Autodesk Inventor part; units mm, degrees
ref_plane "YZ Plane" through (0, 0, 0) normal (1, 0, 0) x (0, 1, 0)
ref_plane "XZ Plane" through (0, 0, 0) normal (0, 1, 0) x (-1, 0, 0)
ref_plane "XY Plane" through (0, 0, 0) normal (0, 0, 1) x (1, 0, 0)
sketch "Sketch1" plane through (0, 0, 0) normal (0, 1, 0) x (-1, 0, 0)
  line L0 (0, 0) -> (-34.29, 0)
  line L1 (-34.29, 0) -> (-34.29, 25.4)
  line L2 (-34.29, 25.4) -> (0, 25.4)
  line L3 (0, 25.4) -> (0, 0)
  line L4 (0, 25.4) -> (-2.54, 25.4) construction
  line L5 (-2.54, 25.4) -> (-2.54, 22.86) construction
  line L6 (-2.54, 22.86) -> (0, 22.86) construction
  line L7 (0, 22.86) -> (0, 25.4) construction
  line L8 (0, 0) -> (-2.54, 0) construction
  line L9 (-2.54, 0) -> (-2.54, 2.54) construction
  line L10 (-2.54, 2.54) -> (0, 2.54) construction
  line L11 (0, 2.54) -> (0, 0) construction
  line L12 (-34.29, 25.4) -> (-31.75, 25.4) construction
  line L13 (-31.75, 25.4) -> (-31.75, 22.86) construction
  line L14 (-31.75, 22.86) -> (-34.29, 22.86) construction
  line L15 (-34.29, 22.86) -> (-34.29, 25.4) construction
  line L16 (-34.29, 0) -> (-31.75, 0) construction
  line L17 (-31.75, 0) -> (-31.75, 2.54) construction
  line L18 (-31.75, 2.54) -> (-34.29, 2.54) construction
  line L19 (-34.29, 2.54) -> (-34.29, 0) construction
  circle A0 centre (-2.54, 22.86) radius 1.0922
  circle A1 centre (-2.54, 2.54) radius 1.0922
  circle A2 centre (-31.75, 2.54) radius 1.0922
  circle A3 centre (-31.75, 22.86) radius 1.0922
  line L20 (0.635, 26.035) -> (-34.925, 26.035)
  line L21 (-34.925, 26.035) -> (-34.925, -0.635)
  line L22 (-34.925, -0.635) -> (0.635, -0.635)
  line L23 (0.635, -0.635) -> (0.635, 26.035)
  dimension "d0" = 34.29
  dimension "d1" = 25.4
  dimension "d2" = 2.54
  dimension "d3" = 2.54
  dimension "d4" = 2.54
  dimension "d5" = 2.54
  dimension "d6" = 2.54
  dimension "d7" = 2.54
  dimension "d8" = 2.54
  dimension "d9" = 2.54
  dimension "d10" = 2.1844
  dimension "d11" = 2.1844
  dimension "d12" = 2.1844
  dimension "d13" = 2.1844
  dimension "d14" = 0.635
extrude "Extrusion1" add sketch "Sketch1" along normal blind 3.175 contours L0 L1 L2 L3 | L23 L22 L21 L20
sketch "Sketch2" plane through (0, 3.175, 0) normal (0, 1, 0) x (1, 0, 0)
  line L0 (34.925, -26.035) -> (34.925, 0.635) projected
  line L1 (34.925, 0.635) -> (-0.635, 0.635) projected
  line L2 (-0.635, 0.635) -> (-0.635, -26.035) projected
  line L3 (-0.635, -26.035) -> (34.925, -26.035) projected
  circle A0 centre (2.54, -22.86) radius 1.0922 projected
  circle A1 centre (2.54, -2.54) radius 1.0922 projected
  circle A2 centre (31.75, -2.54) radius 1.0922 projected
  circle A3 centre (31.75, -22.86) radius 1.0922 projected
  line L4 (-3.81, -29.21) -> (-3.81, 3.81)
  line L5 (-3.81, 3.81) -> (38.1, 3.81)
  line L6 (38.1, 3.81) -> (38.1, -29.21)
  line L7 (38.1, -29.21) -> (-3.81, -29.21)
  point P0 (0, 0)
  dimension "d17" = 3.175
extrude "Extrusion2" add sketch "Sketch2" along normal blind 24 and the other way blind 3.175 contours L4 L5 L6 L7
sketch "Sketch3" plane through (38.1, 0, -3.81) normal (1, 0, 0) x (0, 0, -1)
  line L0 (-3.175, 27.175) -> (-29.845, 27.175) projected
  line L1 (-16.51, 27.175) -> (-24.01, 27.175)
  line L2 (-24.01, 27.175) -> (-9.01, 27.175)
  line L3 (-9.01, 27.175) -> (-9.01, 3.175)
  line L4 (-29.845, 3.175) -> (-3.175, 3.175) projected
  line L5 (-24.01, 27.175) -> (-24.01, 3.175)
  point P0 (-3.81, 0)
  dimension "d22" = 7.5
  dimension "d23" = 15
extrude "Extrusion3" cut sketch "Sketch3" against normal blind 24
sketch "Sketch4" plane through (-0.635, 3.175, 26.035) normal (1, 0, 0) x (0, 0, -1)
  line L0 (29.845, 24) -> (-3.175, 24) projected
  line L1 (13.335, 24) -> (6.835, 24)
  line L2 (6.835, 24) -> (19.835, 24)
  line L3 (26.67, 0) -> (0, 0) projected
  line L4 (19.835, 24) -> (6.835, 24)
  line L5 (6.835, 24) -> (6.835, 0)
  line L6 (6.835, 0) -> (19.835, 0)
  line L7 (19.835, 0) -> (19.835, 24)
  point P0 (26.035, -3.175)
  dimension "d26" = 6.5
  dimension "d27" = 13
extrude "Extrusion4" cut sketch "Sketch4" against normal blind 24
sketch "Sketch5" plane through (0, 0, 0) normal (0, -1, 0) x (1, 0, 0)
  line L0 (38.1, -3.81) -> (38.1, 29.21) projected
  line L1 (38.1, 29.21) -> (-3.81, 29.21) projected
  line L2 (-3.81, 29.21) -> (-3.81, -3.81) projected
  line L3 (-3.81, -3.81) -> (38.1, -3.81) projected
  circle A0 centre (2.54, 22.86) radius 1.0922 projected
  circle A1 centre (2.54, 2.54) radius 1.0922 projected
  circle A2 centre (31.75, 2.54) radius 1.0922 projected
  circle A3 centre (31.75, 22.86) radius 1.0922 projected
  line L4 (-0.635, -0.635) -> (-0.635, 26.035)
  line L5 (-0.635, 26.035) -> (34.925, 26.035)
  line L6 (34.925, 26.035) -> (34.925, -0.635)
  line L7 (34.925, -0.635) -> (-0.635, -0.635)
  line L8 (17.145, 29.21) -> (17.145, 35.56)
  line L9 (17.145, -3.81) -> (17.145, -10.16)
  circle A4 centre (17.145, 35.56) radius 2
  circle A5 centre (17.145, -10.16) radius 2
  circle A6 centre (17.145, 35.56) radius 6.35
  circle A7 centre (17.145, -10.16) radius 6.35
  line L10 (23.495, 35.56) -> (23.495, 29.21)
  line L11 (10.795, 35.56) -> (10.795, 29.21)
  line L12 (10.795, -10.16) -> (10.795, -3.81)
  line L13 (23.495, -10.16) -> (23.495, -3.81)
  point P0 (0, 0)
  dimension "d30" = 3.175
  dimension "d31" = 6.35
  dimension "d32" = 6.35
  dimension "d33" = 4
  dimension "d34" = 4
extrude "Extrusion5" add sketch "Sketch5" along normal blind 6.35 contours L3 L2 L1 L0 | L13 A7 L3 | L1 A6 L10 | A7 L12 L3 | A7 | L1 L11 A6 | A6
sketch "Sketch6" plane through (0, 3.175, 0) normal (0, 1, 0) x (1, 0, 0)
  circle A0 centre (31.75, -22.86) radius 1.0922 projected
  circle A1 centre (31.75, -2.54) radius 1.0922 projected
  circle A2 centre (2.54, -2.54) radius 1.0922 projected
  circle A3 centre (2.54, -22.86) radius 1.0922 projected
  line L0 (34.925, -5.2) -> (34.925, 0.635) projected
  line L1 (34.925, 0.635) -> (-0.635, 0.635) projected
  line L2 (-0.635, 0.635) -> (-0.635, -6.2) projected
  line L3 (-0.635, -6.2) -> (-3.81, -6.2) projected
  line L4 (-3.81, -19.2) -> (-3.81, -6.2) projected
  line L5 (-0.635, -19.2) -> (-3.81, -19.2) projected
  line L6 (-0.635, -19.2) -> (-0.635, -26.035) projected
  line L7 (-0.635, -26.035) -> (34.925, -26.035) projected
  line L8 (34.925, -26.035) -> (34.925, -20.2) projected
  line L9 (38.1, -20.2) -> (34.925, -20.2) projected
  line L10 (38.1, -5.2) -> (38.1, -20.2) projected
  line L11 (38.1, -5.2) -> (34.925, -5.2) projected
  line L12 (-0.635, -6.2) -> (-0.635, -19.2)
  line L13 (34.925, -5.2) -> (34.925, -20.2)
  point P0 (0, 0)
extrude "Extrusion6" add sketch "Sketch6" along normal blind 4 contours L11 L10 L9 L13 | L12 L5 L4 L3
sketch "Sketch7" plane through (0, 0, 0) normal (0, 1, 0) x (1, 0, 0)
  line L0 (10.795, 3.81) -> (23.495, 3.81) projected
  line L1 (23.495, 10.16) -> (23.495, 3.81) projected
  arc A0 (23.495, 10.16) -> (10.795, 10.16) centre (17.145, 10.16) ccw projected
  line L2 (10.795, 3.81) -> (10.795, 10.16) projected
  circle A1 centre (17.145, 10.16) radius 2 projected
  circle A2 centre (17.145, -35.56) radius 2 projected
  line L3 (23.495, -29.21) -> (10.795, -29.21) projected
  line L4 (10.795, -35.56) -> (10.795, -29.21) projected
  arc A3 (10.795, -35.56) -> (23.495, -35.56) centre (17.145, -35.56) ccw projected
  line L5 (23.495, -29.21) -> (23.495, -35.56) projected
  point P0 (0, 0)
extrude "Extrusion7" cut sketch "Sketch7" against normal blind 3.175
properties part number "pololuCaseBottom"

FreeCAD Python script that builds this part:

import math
import FreeCAD as App
import Part
import Sketcher
Q = App.Units.Quantity


def add_polygon(sketch, points):
    """Adds a closed chain of lines whose ends are joined by coincident constraints."""
    first, n = sketch.GeometryCount, len(points)
    for a, b in zip(points, points[1:] + points[:1]):
        sketch.addGeometry(Part.LineSegment(App.Vector(*a, 0), App.Vector(*b, 0)), False)
    for i in range(n):
        sketch.addConstraint(Sketcher.Constraint("Coincident", first + i, 2, first + (i + 1) % n, 1))

doc = App.newDocument("Part")
params = doc.addObject("Spreadsheet::Sheet", "Params")
for row, (alias, value) in enumerate([
    ("sketch1_diameter", "0.086 in"),
    ("sketch1_width", "1.4 in"),
    ("sketch1_height", "1.05 in"),
    ("pad1_length", "0.125 in"),
    ("sketch2_width", "1.4 in"),
    ("sketch2_height", "1.3 in"),
    ("pad2_length", "24 mm"),
    ("pad2_length2", "0.125 in"),
    ("pocket1_length", "24 mm"),
    ("pocket2_length", "24 mm"),
    ("sketch5_radius", "0.25 in"),
    ("sketch5_height", "0.25 in"),
    ("sketch5_width", "1.4 in"),
    ("sketch5_height2", "1.3 in"),
    ("pad3_length", "0.25 in"),
    ("sketch6_width", "0.125 in"),
    ("pad4_length", "4 mm"),
    ("sketch7_radius", "0.25 in"),
    ("sketch7_height", "0.25 in"),
    ("pocket3_length", "0.125 in"),
], start=1):
    params.set(f"A{row}", alias)
    params.set(f"B{row}", "=" + value)
    params.setAlias(f"B{row}", alias)

body = doc.addObject("PartDesign::Body", "Body")

sketch1 = doc.addObject("Sketcher::SketchObject", "Sketch")
body.addObject(sketch1)
sketch1.AttachmentSupport = (doc.XZ_Plane, [""])
sketch1.MapMode = "FlatFace"
add_polygon(sketch1, [(-0.6, -0.6), (-0.6, 26), (34.9, 26), (34.9, -0.6)])
sketch1.addGeometry(Part.Circle(App.Vector(31.8, 2.5, 0), App.Vector(0, 0, 1), 1.1), False)
sketch1.addGeometry(Part.Circle(App.Vector(2.5, 2.5, 0), App.Vector(0, 0, 1), 1.1), False)
sketch1.addGeometry(Part.Circle(App.Vector(31.8, 22.9, 0), App.Vector(0, 0, 1), 1.1), False)
sketch1.addGeometry(Part.Circle(App.Vector(2.5, 22.9, 0), App.Vector(0, 0, 1), 1.1), False)
sketch1.addConstraint([
    Sketcher.Constraint("Vertical", 0),
    Sketcher.Constraint("Horizontal", 1),
    Sketcher.Constraint("Vertical", 2),
    Sketcher.Constraint("Horizontal", 3),
    Sketcher.Constraint("Equal", 4, 5),
    Sketcher.Constraint("Equal", 5, 6),
    Sketcher.Constraint("Equal", 6, 7),
    Sketcher.Constraint("Horizontal", 4, 3, 5, 3),
    Sketcher.Constraint("Horizontal", 6, 3, 7, 3),
    Sketcher.Constraint("Vertical", 4, 3, 6, 3),
    Sketcher.Constraint("Vertical", 5, 3, 7, 3),
    Sketcher.Constraint("Diameter", 4, Q("0.086 in")),
    Sketcher.Constraint("DistanceY", -1, 1, 4, 3, Q("0.1 in")),
    Sketcher.Constraint("DistanceX", -1, 1, 5, 3, Q("0.1 in")),
    Sketcher.Constraint("DistanceX", 1, 1, 1, 2, Q("1.4 in")),
    Sketcher.Constraint("DistanceX", 0, 2, -1, 1, Q("0.025 in")),
    Sketcher.Constraint("DistanceY", 2, 2, -1, 1, Q("0.025 in")),
    Sketcher.Constraint("DistanceY", 0, 1, 0, 2, Q("1.05 in")),
    Sketcher.Constraint("DistanceY", -1, 1, 6, 3, Q("0.9 in")),
    Sketcher.Constraint("DistanceX", -1, 1, 4, 3, Q("1.25 in")),
])
sketch1.setExpression("Constraints[15]", "Params.sketch1_diameter")
sketch1.setExpression("Constraints[18]", "Params.sketch1_width")
sketch1.setExpression("Constraints[21]", "Params.sketch1_height")
pad1 = doc.addObject("PartDesign::Pad", "Pad")
body.addObject(pad1)
pad1.Profile = sketch1
pad1.setExpression("Length", "Params.pad1_length")
pad1.Reversed = True

sketch2 = doc.addObject("Sketcher::SketchObject", "Sketch001")
body.addObject(sketch2)
sketch2.AttachmentSupport = (doc.XZ_Plane, [""])
sketch2.MapMode = "FlatFace"
sketch2.AttachmentOffset = App.Placement(App.Vector(0, 0, -0.125 * 25.4), App.Rotation())
add_polygon(sketch2, [(-4, -4), (-4, 29), (38, 29), (38, -4)])
add_polygon(sketch2, [(35, -1), (35, 26), (-1, 26), (-1, -1)])
sketch2.addConstraint([
    Sketcher.Constraint("Vertical", 0),
    Sketcher.Constraint("Horizontal", 1),
    Sketcher.Constraint("Vertical", 2),
    Sketcher.Constraint("Horizontal", 3),
    Sketcher.Constraint("Vertical", 4),
    Sketcher.Constraint("Horizontal", 5),
    Sketcher.Constraint("Vertical", 6),
    Sketcher.Constraint("Horizontal", 7),
    Sketcher.Constraint("DistanceX", 5, 2, 5, 1, Q("1.4 in")),
    Sketcher.Constraint("DistanceY", 0, 1, 0, 2, Q("1.3 in")),
    Sketcher.Constraint("DistanceX", 4, 2, 1, 2, Q("0.125 in")),
    Sketcher.Constraint("DistanceY", 4, 2, 1, 2, Q("0.125 in")),
    Sketcher.Constraint("DistanceX", 0, 2, 5, 2, Q("0.125 in")),
    Sketcher.Constraint("DistanceY", 3, 2, 6, 2, Q("0.125 in")),
    Sketcher.Constraint("DistanceX", -1, 1, 1, 2, Q("1.5 in")),
    Sketcher.Constraint("DistanceY", -1, 1, 0, 2, Q("1.15 in")),
])
sketch2.setExpression("Constraints[16]", "Params.sketch2_width")
sketch2.setExpression("Constraints[17]", "Params.sketch2_height")
pad2 = doc.addObject("PartDesign::Pad", "Pad001")
body.addObject(pad2)
pad2.Profile = sketch2
pad2.Type = "TwoLengths"
pad2.setExpression("Length", "Params.pad2_length")
pad2.setExpression("Length2", "Params.pad2_length2")
pad2.Reversed = True

sketch3 = doc.addObject("Sketcher::SketchObject", "Sketch002")
body.addObject(sketch3)
sketch3.AttachmentSupport = (doc.YZ_Plane, [""])
sketch3.MapMode = "FlatFace"
sketch3.AttachmentOffset = App.Placement(App.Vector(0, 0, 1.5 * 25.4), App.Rotation())
add_polygon(sketch3, [(3, 5), (27, 5), (27, 20), (3, 20)])
sketch3.addConstraint([
    Sketcher.Constraint("Horizontal", 0),
    Sketcher.Constraint("Vertical", 1),
    Sketcher.Constraint("Horizontal", 2),
    Sketcher.Constraint("Vertical", 3),
    Sketcher.Constraint("DistanceY", 1, 1, 1, 2, 15.0),
    Sketcher.Constraint("DistanceX", -1, 1, 2, 2, Q("0.125 in")),
    Sketcher.Constraint("DistanceX", 0, 1, 0, 2, 24.0),
    Sketcher.Constraint("DistanceY", -1, 1, 0, 2, 5.2),
])
pocket1 = doc.addObject("PartDesign::Pocket", "Pocket")
body.addObject(pocket1)
pocket1.Profile = sketch3
pocket1.setExpression("Length", "Params.pocket1_length")

sketch4 = doc.addObject("Sketcher::SketchObject", "Sketch003")
body.addObject(sketch4)
sketch4.AttachmentSupport = (doc.YZ_Plane, [""])
sketch4.MapMode = "FlatFace"
sketch4.AttachmentOffset = App.Placement(App.Vector(0, 0, -0.025 * 25.4), App.Rotation())
add_polygon(sketch4, [(3, 6), (27, 6), (27, 19), (3, 19)])
sketch4.addConstraint([
    Sketcher.Constraint("Horizontal", 0),
    Sketcher.Constraint("Vertical", 1),
    Sketcher.Constraint("Horizontal", 2),
    Sketcher.Constraint("Vertical", 3),
    Sketcher.Constraint("DistanceY", 1, 1, 1, 2, Q("0.5118 in")),
    Sketcher.Constraint("DistanceX", -1, 1, 2, 2, Q("0.125 in")),
    Sketcher.Constraint("DistanceX", 0, 1, 0, 2, 24.0),
    Sketcher.Constraint("DistanceY", -1, 1, 0, 2, Q("0.2441 in")),
])
pocket2 = doc.addObject("PartDesign::Pocket", "Pocket001")
body.addObject(pocket2)
pocket2.Profile = sketch4
pocket2.setExpression("Length", "Params.pocket2_length")

sketch5 = doc.addObject("Sketcher::SketchObject", "Sketch004")
body.addObject(sketch5)
sketch5.AttachmentSupport = (doc.XZ_Plane, [""])
sketch5.MapMode = "FlatFace"
sketch5.addGeometry(Part.LineSegment(App.Vector(23.5, -3.8, 0), App.Vector(38.1, -3.8, 0)), False)
sketch5.addGeometry(Part.LineSegment(App.Vector(38.1, -3.8, 0), App.Vector(38.1, 29.2, 0)), False)
sketch5.addGeometry(Part.LineSegment(App.Vector(38.1, 29.2, 0), App.Vector(23.5, 29.2, 0)), False)
sketch5.addGeometry(Part.LineSegment(App.Vector(23.5, 29.2, 0), App.Vector(23.5, 35.6, 0)), False)
sketch5.addGeometry(Part.ArcOfCircle(Part.Circle(App.Vector(17.1, 35.6, 0), App.Vector(0, 0, 1), 6.3), math.radians(0), math.radians(180)), False)
sketch5.addGeometry(Part.LineSegment(App.Vector(10.8, 35.6, 0), App.Vector(10.8, 29.2, 0)), False)
sketch5.addGeometry(Part.LineSegment(App.Vector(10.8, 29.2, 0), App.Vector(-3.8, 29.2, 0)), False)
sketch5.addGeometry(Part.LineSegment(App.Vector(-3.8, 29.2, 0), App.Vector(-3.8, -3.8, 0)), False)
sketch5.addGeometry(Part.LineSegment(App.Vector(-3.8, -3.8, 0), App.Vector(10.8, -3.8, 0)), False)
sketch5.addGeometry(Part.LineSegment(App.Vector(10.8, -3.8, 0), App.Vector(10.8, -10.2, 0)), False)
sketch5.addGeometry(Part.ArcOfCircle(Part.Circle(App.Vector(17.1, -10.2, 0), App.Vector(0, 0, 1), 6.3), math.radians(180), math.radians(360)), False)
sketch5.addGeometry(Part.LineSegment(App.Vector(23.5, -10.2, 0), App.Vector(23.5, -3.8, 0)), False)
add_polygon(sketch5, [(34.9, -0.6), (-0.6, -0.6), (-0.6, 26), (34.9, 26)])
sketch5.addGeometry(Part.Circle(App.Vector(17.1, -10.2, 0), App.Vector(0, 0, 1), 2), False)
sketch5.addGeometry(Part.Circle(App.Vector(17.1, 35.6, 0), App.Vector(0, 0, 1), 2), False)
sketch5.addConstraint([
    Sketcher.Constraint("Coincident", 0, 2, 1, 1),
    Sketcher.Constraint("Coincident", 1, 2, 2, 1),
    Sketcher.Constraint("Coincident", 2, 2, 3, 1),
    Sketcher.Constraint("Tangent", 3, 2, 4, 1),
    Sketcher.Constraint("Tangent", 4, 2, 5, 1),
    Sketcher.Constraint("Coincident", 5, 2, 6, 1),
    Sketcher.Constraint("Coincident", 6, 2, 7, 1),
    Sketcher.Constraint("Coincident", 7, 2, 8, 1),
    Sketcher.Constraint("Coincident", 8, 2, 9, 1),
    Sketcher.Constraint("Tangent", 9, 2, 10, 1),
    Sketcher.Constraint("Tangent", 10, 2, 11, 1),
    Sketcher.Constraint("Coincident", 11, 2, 0, 1),
    Sketcher.Constraint("Horizontal", 0),
    Sketcher.Constraint("Vertical", 1),
    Sketcher.Constraint("Horizontal", 2),
    Sketcher.Constraint("Vertical", 3),
    Sketcher.Constraint("Vertical", 5),
    Sketcher.Constraint("Horizontal", 6),
    Sketcher.Constraint("Vertical", 7),
    Sketcher.Constraint("Horizontal", 8),
    Sketcher.Constraint("Vertical", 9),
    Sketcher.Constraint("Vertical", 11),
    Sketcher.Constraint("Horizontal", 12),
    Sketcher.Constraint("Vertical", 13),
    Sketcher.Constraint("Horizontal", 14),
    Sketcher.Constraint("Vertical", 15),
    Sketcher.Constraint("Coincident", 16, 3, 10, 3),
    Sketcher.Constraint("Coincident", 17, 3, 4, 3),
    Sketcher.Constraint("Equal", 4, 10),
    Sketcher.Constraint("Equal", 16, 17),
    Sketcher.Constraint("Horizontal", 2, 2, 5, 2),
    Sketcher.Constraint("Horizontal", 0, 2, 7, 2),
    Sketcher.Constraint("Vertical", 4, 3, 10, 3),
    Sketcher.Constraint("Equal", 2, 6),
    Sketcher.Constraint("Equal", 5, 9),
    Sketcher.Constraint("Radius", 4, Q("0.25 in")),
    Sketcher.Constraint("DistanceY", 3, 1, 3, 2, Q("0.25 in")),
    Sketcher.Constraint("Diameter", 16, 4.0),
    Sketcher.Constraint("DistanceX", 12, 2, 12, 1, Q("1.4 in")),
    Sketcher.Constraint("DistanceY", 1, 1, 1, 2, Q("1.3 in")),
    Sketcher.Constraint("DistanceX", 7, 2, 12, 2, Q("0.125 in")),
    Sketcher.Constraint("DistanceY", 7, 2, 12, 2, Q("0.125 in")),
    Sketcher.Constraint("DistanceY", 13, 2, 6, 2, Q("0.125 in")),
    Sketcher.Constraint("DistanceX", 14, 2, 1, 2, Q("0.125 in")),
    Sketcher.Constraint("DistanceY", -1, 1, 4, 3, Q("1.4 in")),
    Sketcher.Constraint("DistanceX", -1, 1, 0, 2, Q("1.5 in")),
])
sketch5.setExpression("Constraints[39]", "Params.sketch5_radius")
sketch5.setExpression("Constraints[40]", "Params.sketch5_height")
sketch5.setExpression("Constraints[42]", "Params.sketch5_width")
sketch5.setExpression("Constraints[43]", "Params.sketch5_height2")
pad3 = doc.addObject("PartDesign::Pad", "Pad002")
body.addObject(pad3)
pad3.Profile = sketch5
pad3.setExpression("Length", "Params.pad3_length")

sketch6 = doc.addObject("Sketcher::SketchObject", "Sketch005")
body.addObject(sketch6)
sketch6.AttachmentSupport = (doc.XZ_Plane, [""])
sketch6.MapMode = "FlatFace"
sketch6.AttachmentOffset = App.Placement(App.Vector(0, 0, -0.125 * 25.4), App.Rotation())
add_polygon(sketch6, [(38.1, 5.2), (34.9, 5.2), (34.9, 20.2), (38.1, 20.2)])
add_polygon(sketch6, [(-0.6, 19.2), (-0.6, 6.2), (-3.8, 6.2), (-3.8, 19.2)])
sketch6.addConstraint([
    Sketcher.Constraint("Horizontal", 0),
    Sketcher.Constraint("Vertical", 1),
    Sketcher.Constraint("Horizontal", 2),
    Sketcher.Constraint("Vertical", 3),
    Sketcher.Constraint("Vertical", 4),
    Sketcher.Constraint("Horizontal", 5),
    Sketcher.Constraint("Vertical", 6),
    Sketcher.Constraint("Horizontal", 7),
    Sketcher.Constraint("Equal", 2, 5),
    Sketcher.Constraint("DistanceX", -1, 1, 2, 2, Q("1.5 in")),
    Sketcher.Constraint("DistanceX", 4, 2, 0, 2, Q("1.4 in")),
    Sketcher.Constraint("DistanceX", 0, 2, 0, 1, Q("0.125 in")),
    Sketcher.Constraint("DistanceY", 4, 2, 4, 1, Q("0.5118 in")),
    Sketcher.Constraint("DistanceY", 1, 1, 1, 2, 15.0),
    Sketcher.Constraint("DistanceY", -1, 1, 4, 2, Q("0.2441 in")),
    Sketcher.Constraint("DistanceY", -1, 1, 0, 2, 5.2),
])
sketch6.setExpression("Constraints[19]", "Params.sketch6_width")
pad4 = doc.addObject("PartDesign::Pad", "Pad003")
body.addObject(pad4)
pad4.Profile = sketch6
pad4.setExpression("Length", "Params.pad4_length")
pad4.Reversed = True

sketch7 = doc.addObject("Sketcher::SketchObject", "Sketch006")
body.addObject(sketch7)
sketch7.AttachmentSupport = (doc.XZ_Plane, [""])
sketch7.MapMode = "FlatFace"
sketch7.addGeometry([
    Part.LineSegment(App.Vector(10.8, -10.2, 0), App.Vector(10.8, -3.8, 0)),
    Part.LineSegment(App.Vector(10.8, -3.8, 0), App.Vector(23.5, -3.8, 0)),
    Part.LineSegment(App.Vector(23.5, -3.8, 0), App.Vector(23.5, -10.2, 0)),
    Part.ArcOfCircle(Part.Circle(App.Vector(17.1, -10.2, 0), App.Vector(0, 0, 1), 6.4), math.radians(180), math.radians(360)),
    Part.Circle(App.Vector(17.1, -10.2, 0), App.Vector(0, 0, 1), 2),
    Part.LineSegment(App.Vector(23.5, 35.6, 0), App.Vector(23.5, 29.2, 0)),
    Part.LineSegment(App.Vector(23.5, 29.2, 0), App.Vector(10.8, 29.2, 0)),
    Part.LineSegment(App.Vector(10.8, 29.2, 0), App.Vector(10.8, 35.6, 0)),
    Part.ArcOfCircle(Part.Circle(App.Vector(17.1, 35.6, 0), App.Vector(0, 0, 1), 6.3), math.radians(0), math.radians(180)),
    Part.Circle(App.Vector(17.1, 35.6, 0), App.Vector(0, 0, 1), 2),
], False)
sketch7.addConstraint([
    Sketcher.Constraint("Coincident", 0, 2, 1, 1),
    Sketcher.Constraint("Coincident", 1, 2, 2, 1),
    Sketcher.Constraint("Tangent", 2, 2, 3, 2),
    Sketcher.Constraint("Tangent", 3, 1, 0, 1),
    Sketcher.Constraint("Coincident", 5, 2, 6, 1),
    Sketcher.Constraint("Coincident", 6, 2, 7, 1),
    Sketcher.Constraint("Tangent", 7, 2, 8, 2),
    Sketcher.Constraint("Tangent", 8, 1, 5, 1),
    Sketcher.Constraint("Vertical", 0),
    Sketcher.Constraint("Horizontal", 1),
    Sketcher.Constraint("Vertical", 2),
    Sketcher.Constraint("Vertical", 5),
    Sketcher.Constraint("Horizontal", 6),
    Sketcher.Constraint("Vertical", 7),
    Sketcher.Constraint("Coincident", 4, 3, 3, 3),
    Sketcher.Constraint("Coincident", 9, 3, 8, 3),
    Sketcher.Constraint("Equal", 3, 8),
    Sketcher.Constraint("Equal", 4, 9),
    Sketcher.Constraint("Vertical", 4, 3, 8, 3),
    Sketcher.Constraint("Equal", 2, 5),
    Sketcher.Constraint("Radius", 3, Q("0.25 in")),
    Sketcher.Constraint("DistanceY", 0, 1, 0, 2, Q("0.25 in")),
    Sketcher.Constraint("DistanceY", 3, 3, -1, 1, Q("0.4 in")),
    Sketcher.Constraint("DistanceY", -1, 1, 8, 3, Q("1.4 in")),
    Sketcher.Constraint("Diameter", 4, 4.0),
    Sketcher.Constraint("DistanceX", -1, 1, 3, 3, Q("0.675 in")),
])
sketch7.setExpression("Constraints[20]", "Params.sketch7_radius")
sketch7.setExpression("Constraints[21]", "Params.sketch7_height")
pocket3 = doc.addObject("PartDesign::Pocket", "Pocket002")
body.addObject(pocket3)
pocket3.Profile = sketch7
pocket3.setExpression("Length", "Params.pocket3_length")
pocket3.Reversed = True

doc.recompute()
